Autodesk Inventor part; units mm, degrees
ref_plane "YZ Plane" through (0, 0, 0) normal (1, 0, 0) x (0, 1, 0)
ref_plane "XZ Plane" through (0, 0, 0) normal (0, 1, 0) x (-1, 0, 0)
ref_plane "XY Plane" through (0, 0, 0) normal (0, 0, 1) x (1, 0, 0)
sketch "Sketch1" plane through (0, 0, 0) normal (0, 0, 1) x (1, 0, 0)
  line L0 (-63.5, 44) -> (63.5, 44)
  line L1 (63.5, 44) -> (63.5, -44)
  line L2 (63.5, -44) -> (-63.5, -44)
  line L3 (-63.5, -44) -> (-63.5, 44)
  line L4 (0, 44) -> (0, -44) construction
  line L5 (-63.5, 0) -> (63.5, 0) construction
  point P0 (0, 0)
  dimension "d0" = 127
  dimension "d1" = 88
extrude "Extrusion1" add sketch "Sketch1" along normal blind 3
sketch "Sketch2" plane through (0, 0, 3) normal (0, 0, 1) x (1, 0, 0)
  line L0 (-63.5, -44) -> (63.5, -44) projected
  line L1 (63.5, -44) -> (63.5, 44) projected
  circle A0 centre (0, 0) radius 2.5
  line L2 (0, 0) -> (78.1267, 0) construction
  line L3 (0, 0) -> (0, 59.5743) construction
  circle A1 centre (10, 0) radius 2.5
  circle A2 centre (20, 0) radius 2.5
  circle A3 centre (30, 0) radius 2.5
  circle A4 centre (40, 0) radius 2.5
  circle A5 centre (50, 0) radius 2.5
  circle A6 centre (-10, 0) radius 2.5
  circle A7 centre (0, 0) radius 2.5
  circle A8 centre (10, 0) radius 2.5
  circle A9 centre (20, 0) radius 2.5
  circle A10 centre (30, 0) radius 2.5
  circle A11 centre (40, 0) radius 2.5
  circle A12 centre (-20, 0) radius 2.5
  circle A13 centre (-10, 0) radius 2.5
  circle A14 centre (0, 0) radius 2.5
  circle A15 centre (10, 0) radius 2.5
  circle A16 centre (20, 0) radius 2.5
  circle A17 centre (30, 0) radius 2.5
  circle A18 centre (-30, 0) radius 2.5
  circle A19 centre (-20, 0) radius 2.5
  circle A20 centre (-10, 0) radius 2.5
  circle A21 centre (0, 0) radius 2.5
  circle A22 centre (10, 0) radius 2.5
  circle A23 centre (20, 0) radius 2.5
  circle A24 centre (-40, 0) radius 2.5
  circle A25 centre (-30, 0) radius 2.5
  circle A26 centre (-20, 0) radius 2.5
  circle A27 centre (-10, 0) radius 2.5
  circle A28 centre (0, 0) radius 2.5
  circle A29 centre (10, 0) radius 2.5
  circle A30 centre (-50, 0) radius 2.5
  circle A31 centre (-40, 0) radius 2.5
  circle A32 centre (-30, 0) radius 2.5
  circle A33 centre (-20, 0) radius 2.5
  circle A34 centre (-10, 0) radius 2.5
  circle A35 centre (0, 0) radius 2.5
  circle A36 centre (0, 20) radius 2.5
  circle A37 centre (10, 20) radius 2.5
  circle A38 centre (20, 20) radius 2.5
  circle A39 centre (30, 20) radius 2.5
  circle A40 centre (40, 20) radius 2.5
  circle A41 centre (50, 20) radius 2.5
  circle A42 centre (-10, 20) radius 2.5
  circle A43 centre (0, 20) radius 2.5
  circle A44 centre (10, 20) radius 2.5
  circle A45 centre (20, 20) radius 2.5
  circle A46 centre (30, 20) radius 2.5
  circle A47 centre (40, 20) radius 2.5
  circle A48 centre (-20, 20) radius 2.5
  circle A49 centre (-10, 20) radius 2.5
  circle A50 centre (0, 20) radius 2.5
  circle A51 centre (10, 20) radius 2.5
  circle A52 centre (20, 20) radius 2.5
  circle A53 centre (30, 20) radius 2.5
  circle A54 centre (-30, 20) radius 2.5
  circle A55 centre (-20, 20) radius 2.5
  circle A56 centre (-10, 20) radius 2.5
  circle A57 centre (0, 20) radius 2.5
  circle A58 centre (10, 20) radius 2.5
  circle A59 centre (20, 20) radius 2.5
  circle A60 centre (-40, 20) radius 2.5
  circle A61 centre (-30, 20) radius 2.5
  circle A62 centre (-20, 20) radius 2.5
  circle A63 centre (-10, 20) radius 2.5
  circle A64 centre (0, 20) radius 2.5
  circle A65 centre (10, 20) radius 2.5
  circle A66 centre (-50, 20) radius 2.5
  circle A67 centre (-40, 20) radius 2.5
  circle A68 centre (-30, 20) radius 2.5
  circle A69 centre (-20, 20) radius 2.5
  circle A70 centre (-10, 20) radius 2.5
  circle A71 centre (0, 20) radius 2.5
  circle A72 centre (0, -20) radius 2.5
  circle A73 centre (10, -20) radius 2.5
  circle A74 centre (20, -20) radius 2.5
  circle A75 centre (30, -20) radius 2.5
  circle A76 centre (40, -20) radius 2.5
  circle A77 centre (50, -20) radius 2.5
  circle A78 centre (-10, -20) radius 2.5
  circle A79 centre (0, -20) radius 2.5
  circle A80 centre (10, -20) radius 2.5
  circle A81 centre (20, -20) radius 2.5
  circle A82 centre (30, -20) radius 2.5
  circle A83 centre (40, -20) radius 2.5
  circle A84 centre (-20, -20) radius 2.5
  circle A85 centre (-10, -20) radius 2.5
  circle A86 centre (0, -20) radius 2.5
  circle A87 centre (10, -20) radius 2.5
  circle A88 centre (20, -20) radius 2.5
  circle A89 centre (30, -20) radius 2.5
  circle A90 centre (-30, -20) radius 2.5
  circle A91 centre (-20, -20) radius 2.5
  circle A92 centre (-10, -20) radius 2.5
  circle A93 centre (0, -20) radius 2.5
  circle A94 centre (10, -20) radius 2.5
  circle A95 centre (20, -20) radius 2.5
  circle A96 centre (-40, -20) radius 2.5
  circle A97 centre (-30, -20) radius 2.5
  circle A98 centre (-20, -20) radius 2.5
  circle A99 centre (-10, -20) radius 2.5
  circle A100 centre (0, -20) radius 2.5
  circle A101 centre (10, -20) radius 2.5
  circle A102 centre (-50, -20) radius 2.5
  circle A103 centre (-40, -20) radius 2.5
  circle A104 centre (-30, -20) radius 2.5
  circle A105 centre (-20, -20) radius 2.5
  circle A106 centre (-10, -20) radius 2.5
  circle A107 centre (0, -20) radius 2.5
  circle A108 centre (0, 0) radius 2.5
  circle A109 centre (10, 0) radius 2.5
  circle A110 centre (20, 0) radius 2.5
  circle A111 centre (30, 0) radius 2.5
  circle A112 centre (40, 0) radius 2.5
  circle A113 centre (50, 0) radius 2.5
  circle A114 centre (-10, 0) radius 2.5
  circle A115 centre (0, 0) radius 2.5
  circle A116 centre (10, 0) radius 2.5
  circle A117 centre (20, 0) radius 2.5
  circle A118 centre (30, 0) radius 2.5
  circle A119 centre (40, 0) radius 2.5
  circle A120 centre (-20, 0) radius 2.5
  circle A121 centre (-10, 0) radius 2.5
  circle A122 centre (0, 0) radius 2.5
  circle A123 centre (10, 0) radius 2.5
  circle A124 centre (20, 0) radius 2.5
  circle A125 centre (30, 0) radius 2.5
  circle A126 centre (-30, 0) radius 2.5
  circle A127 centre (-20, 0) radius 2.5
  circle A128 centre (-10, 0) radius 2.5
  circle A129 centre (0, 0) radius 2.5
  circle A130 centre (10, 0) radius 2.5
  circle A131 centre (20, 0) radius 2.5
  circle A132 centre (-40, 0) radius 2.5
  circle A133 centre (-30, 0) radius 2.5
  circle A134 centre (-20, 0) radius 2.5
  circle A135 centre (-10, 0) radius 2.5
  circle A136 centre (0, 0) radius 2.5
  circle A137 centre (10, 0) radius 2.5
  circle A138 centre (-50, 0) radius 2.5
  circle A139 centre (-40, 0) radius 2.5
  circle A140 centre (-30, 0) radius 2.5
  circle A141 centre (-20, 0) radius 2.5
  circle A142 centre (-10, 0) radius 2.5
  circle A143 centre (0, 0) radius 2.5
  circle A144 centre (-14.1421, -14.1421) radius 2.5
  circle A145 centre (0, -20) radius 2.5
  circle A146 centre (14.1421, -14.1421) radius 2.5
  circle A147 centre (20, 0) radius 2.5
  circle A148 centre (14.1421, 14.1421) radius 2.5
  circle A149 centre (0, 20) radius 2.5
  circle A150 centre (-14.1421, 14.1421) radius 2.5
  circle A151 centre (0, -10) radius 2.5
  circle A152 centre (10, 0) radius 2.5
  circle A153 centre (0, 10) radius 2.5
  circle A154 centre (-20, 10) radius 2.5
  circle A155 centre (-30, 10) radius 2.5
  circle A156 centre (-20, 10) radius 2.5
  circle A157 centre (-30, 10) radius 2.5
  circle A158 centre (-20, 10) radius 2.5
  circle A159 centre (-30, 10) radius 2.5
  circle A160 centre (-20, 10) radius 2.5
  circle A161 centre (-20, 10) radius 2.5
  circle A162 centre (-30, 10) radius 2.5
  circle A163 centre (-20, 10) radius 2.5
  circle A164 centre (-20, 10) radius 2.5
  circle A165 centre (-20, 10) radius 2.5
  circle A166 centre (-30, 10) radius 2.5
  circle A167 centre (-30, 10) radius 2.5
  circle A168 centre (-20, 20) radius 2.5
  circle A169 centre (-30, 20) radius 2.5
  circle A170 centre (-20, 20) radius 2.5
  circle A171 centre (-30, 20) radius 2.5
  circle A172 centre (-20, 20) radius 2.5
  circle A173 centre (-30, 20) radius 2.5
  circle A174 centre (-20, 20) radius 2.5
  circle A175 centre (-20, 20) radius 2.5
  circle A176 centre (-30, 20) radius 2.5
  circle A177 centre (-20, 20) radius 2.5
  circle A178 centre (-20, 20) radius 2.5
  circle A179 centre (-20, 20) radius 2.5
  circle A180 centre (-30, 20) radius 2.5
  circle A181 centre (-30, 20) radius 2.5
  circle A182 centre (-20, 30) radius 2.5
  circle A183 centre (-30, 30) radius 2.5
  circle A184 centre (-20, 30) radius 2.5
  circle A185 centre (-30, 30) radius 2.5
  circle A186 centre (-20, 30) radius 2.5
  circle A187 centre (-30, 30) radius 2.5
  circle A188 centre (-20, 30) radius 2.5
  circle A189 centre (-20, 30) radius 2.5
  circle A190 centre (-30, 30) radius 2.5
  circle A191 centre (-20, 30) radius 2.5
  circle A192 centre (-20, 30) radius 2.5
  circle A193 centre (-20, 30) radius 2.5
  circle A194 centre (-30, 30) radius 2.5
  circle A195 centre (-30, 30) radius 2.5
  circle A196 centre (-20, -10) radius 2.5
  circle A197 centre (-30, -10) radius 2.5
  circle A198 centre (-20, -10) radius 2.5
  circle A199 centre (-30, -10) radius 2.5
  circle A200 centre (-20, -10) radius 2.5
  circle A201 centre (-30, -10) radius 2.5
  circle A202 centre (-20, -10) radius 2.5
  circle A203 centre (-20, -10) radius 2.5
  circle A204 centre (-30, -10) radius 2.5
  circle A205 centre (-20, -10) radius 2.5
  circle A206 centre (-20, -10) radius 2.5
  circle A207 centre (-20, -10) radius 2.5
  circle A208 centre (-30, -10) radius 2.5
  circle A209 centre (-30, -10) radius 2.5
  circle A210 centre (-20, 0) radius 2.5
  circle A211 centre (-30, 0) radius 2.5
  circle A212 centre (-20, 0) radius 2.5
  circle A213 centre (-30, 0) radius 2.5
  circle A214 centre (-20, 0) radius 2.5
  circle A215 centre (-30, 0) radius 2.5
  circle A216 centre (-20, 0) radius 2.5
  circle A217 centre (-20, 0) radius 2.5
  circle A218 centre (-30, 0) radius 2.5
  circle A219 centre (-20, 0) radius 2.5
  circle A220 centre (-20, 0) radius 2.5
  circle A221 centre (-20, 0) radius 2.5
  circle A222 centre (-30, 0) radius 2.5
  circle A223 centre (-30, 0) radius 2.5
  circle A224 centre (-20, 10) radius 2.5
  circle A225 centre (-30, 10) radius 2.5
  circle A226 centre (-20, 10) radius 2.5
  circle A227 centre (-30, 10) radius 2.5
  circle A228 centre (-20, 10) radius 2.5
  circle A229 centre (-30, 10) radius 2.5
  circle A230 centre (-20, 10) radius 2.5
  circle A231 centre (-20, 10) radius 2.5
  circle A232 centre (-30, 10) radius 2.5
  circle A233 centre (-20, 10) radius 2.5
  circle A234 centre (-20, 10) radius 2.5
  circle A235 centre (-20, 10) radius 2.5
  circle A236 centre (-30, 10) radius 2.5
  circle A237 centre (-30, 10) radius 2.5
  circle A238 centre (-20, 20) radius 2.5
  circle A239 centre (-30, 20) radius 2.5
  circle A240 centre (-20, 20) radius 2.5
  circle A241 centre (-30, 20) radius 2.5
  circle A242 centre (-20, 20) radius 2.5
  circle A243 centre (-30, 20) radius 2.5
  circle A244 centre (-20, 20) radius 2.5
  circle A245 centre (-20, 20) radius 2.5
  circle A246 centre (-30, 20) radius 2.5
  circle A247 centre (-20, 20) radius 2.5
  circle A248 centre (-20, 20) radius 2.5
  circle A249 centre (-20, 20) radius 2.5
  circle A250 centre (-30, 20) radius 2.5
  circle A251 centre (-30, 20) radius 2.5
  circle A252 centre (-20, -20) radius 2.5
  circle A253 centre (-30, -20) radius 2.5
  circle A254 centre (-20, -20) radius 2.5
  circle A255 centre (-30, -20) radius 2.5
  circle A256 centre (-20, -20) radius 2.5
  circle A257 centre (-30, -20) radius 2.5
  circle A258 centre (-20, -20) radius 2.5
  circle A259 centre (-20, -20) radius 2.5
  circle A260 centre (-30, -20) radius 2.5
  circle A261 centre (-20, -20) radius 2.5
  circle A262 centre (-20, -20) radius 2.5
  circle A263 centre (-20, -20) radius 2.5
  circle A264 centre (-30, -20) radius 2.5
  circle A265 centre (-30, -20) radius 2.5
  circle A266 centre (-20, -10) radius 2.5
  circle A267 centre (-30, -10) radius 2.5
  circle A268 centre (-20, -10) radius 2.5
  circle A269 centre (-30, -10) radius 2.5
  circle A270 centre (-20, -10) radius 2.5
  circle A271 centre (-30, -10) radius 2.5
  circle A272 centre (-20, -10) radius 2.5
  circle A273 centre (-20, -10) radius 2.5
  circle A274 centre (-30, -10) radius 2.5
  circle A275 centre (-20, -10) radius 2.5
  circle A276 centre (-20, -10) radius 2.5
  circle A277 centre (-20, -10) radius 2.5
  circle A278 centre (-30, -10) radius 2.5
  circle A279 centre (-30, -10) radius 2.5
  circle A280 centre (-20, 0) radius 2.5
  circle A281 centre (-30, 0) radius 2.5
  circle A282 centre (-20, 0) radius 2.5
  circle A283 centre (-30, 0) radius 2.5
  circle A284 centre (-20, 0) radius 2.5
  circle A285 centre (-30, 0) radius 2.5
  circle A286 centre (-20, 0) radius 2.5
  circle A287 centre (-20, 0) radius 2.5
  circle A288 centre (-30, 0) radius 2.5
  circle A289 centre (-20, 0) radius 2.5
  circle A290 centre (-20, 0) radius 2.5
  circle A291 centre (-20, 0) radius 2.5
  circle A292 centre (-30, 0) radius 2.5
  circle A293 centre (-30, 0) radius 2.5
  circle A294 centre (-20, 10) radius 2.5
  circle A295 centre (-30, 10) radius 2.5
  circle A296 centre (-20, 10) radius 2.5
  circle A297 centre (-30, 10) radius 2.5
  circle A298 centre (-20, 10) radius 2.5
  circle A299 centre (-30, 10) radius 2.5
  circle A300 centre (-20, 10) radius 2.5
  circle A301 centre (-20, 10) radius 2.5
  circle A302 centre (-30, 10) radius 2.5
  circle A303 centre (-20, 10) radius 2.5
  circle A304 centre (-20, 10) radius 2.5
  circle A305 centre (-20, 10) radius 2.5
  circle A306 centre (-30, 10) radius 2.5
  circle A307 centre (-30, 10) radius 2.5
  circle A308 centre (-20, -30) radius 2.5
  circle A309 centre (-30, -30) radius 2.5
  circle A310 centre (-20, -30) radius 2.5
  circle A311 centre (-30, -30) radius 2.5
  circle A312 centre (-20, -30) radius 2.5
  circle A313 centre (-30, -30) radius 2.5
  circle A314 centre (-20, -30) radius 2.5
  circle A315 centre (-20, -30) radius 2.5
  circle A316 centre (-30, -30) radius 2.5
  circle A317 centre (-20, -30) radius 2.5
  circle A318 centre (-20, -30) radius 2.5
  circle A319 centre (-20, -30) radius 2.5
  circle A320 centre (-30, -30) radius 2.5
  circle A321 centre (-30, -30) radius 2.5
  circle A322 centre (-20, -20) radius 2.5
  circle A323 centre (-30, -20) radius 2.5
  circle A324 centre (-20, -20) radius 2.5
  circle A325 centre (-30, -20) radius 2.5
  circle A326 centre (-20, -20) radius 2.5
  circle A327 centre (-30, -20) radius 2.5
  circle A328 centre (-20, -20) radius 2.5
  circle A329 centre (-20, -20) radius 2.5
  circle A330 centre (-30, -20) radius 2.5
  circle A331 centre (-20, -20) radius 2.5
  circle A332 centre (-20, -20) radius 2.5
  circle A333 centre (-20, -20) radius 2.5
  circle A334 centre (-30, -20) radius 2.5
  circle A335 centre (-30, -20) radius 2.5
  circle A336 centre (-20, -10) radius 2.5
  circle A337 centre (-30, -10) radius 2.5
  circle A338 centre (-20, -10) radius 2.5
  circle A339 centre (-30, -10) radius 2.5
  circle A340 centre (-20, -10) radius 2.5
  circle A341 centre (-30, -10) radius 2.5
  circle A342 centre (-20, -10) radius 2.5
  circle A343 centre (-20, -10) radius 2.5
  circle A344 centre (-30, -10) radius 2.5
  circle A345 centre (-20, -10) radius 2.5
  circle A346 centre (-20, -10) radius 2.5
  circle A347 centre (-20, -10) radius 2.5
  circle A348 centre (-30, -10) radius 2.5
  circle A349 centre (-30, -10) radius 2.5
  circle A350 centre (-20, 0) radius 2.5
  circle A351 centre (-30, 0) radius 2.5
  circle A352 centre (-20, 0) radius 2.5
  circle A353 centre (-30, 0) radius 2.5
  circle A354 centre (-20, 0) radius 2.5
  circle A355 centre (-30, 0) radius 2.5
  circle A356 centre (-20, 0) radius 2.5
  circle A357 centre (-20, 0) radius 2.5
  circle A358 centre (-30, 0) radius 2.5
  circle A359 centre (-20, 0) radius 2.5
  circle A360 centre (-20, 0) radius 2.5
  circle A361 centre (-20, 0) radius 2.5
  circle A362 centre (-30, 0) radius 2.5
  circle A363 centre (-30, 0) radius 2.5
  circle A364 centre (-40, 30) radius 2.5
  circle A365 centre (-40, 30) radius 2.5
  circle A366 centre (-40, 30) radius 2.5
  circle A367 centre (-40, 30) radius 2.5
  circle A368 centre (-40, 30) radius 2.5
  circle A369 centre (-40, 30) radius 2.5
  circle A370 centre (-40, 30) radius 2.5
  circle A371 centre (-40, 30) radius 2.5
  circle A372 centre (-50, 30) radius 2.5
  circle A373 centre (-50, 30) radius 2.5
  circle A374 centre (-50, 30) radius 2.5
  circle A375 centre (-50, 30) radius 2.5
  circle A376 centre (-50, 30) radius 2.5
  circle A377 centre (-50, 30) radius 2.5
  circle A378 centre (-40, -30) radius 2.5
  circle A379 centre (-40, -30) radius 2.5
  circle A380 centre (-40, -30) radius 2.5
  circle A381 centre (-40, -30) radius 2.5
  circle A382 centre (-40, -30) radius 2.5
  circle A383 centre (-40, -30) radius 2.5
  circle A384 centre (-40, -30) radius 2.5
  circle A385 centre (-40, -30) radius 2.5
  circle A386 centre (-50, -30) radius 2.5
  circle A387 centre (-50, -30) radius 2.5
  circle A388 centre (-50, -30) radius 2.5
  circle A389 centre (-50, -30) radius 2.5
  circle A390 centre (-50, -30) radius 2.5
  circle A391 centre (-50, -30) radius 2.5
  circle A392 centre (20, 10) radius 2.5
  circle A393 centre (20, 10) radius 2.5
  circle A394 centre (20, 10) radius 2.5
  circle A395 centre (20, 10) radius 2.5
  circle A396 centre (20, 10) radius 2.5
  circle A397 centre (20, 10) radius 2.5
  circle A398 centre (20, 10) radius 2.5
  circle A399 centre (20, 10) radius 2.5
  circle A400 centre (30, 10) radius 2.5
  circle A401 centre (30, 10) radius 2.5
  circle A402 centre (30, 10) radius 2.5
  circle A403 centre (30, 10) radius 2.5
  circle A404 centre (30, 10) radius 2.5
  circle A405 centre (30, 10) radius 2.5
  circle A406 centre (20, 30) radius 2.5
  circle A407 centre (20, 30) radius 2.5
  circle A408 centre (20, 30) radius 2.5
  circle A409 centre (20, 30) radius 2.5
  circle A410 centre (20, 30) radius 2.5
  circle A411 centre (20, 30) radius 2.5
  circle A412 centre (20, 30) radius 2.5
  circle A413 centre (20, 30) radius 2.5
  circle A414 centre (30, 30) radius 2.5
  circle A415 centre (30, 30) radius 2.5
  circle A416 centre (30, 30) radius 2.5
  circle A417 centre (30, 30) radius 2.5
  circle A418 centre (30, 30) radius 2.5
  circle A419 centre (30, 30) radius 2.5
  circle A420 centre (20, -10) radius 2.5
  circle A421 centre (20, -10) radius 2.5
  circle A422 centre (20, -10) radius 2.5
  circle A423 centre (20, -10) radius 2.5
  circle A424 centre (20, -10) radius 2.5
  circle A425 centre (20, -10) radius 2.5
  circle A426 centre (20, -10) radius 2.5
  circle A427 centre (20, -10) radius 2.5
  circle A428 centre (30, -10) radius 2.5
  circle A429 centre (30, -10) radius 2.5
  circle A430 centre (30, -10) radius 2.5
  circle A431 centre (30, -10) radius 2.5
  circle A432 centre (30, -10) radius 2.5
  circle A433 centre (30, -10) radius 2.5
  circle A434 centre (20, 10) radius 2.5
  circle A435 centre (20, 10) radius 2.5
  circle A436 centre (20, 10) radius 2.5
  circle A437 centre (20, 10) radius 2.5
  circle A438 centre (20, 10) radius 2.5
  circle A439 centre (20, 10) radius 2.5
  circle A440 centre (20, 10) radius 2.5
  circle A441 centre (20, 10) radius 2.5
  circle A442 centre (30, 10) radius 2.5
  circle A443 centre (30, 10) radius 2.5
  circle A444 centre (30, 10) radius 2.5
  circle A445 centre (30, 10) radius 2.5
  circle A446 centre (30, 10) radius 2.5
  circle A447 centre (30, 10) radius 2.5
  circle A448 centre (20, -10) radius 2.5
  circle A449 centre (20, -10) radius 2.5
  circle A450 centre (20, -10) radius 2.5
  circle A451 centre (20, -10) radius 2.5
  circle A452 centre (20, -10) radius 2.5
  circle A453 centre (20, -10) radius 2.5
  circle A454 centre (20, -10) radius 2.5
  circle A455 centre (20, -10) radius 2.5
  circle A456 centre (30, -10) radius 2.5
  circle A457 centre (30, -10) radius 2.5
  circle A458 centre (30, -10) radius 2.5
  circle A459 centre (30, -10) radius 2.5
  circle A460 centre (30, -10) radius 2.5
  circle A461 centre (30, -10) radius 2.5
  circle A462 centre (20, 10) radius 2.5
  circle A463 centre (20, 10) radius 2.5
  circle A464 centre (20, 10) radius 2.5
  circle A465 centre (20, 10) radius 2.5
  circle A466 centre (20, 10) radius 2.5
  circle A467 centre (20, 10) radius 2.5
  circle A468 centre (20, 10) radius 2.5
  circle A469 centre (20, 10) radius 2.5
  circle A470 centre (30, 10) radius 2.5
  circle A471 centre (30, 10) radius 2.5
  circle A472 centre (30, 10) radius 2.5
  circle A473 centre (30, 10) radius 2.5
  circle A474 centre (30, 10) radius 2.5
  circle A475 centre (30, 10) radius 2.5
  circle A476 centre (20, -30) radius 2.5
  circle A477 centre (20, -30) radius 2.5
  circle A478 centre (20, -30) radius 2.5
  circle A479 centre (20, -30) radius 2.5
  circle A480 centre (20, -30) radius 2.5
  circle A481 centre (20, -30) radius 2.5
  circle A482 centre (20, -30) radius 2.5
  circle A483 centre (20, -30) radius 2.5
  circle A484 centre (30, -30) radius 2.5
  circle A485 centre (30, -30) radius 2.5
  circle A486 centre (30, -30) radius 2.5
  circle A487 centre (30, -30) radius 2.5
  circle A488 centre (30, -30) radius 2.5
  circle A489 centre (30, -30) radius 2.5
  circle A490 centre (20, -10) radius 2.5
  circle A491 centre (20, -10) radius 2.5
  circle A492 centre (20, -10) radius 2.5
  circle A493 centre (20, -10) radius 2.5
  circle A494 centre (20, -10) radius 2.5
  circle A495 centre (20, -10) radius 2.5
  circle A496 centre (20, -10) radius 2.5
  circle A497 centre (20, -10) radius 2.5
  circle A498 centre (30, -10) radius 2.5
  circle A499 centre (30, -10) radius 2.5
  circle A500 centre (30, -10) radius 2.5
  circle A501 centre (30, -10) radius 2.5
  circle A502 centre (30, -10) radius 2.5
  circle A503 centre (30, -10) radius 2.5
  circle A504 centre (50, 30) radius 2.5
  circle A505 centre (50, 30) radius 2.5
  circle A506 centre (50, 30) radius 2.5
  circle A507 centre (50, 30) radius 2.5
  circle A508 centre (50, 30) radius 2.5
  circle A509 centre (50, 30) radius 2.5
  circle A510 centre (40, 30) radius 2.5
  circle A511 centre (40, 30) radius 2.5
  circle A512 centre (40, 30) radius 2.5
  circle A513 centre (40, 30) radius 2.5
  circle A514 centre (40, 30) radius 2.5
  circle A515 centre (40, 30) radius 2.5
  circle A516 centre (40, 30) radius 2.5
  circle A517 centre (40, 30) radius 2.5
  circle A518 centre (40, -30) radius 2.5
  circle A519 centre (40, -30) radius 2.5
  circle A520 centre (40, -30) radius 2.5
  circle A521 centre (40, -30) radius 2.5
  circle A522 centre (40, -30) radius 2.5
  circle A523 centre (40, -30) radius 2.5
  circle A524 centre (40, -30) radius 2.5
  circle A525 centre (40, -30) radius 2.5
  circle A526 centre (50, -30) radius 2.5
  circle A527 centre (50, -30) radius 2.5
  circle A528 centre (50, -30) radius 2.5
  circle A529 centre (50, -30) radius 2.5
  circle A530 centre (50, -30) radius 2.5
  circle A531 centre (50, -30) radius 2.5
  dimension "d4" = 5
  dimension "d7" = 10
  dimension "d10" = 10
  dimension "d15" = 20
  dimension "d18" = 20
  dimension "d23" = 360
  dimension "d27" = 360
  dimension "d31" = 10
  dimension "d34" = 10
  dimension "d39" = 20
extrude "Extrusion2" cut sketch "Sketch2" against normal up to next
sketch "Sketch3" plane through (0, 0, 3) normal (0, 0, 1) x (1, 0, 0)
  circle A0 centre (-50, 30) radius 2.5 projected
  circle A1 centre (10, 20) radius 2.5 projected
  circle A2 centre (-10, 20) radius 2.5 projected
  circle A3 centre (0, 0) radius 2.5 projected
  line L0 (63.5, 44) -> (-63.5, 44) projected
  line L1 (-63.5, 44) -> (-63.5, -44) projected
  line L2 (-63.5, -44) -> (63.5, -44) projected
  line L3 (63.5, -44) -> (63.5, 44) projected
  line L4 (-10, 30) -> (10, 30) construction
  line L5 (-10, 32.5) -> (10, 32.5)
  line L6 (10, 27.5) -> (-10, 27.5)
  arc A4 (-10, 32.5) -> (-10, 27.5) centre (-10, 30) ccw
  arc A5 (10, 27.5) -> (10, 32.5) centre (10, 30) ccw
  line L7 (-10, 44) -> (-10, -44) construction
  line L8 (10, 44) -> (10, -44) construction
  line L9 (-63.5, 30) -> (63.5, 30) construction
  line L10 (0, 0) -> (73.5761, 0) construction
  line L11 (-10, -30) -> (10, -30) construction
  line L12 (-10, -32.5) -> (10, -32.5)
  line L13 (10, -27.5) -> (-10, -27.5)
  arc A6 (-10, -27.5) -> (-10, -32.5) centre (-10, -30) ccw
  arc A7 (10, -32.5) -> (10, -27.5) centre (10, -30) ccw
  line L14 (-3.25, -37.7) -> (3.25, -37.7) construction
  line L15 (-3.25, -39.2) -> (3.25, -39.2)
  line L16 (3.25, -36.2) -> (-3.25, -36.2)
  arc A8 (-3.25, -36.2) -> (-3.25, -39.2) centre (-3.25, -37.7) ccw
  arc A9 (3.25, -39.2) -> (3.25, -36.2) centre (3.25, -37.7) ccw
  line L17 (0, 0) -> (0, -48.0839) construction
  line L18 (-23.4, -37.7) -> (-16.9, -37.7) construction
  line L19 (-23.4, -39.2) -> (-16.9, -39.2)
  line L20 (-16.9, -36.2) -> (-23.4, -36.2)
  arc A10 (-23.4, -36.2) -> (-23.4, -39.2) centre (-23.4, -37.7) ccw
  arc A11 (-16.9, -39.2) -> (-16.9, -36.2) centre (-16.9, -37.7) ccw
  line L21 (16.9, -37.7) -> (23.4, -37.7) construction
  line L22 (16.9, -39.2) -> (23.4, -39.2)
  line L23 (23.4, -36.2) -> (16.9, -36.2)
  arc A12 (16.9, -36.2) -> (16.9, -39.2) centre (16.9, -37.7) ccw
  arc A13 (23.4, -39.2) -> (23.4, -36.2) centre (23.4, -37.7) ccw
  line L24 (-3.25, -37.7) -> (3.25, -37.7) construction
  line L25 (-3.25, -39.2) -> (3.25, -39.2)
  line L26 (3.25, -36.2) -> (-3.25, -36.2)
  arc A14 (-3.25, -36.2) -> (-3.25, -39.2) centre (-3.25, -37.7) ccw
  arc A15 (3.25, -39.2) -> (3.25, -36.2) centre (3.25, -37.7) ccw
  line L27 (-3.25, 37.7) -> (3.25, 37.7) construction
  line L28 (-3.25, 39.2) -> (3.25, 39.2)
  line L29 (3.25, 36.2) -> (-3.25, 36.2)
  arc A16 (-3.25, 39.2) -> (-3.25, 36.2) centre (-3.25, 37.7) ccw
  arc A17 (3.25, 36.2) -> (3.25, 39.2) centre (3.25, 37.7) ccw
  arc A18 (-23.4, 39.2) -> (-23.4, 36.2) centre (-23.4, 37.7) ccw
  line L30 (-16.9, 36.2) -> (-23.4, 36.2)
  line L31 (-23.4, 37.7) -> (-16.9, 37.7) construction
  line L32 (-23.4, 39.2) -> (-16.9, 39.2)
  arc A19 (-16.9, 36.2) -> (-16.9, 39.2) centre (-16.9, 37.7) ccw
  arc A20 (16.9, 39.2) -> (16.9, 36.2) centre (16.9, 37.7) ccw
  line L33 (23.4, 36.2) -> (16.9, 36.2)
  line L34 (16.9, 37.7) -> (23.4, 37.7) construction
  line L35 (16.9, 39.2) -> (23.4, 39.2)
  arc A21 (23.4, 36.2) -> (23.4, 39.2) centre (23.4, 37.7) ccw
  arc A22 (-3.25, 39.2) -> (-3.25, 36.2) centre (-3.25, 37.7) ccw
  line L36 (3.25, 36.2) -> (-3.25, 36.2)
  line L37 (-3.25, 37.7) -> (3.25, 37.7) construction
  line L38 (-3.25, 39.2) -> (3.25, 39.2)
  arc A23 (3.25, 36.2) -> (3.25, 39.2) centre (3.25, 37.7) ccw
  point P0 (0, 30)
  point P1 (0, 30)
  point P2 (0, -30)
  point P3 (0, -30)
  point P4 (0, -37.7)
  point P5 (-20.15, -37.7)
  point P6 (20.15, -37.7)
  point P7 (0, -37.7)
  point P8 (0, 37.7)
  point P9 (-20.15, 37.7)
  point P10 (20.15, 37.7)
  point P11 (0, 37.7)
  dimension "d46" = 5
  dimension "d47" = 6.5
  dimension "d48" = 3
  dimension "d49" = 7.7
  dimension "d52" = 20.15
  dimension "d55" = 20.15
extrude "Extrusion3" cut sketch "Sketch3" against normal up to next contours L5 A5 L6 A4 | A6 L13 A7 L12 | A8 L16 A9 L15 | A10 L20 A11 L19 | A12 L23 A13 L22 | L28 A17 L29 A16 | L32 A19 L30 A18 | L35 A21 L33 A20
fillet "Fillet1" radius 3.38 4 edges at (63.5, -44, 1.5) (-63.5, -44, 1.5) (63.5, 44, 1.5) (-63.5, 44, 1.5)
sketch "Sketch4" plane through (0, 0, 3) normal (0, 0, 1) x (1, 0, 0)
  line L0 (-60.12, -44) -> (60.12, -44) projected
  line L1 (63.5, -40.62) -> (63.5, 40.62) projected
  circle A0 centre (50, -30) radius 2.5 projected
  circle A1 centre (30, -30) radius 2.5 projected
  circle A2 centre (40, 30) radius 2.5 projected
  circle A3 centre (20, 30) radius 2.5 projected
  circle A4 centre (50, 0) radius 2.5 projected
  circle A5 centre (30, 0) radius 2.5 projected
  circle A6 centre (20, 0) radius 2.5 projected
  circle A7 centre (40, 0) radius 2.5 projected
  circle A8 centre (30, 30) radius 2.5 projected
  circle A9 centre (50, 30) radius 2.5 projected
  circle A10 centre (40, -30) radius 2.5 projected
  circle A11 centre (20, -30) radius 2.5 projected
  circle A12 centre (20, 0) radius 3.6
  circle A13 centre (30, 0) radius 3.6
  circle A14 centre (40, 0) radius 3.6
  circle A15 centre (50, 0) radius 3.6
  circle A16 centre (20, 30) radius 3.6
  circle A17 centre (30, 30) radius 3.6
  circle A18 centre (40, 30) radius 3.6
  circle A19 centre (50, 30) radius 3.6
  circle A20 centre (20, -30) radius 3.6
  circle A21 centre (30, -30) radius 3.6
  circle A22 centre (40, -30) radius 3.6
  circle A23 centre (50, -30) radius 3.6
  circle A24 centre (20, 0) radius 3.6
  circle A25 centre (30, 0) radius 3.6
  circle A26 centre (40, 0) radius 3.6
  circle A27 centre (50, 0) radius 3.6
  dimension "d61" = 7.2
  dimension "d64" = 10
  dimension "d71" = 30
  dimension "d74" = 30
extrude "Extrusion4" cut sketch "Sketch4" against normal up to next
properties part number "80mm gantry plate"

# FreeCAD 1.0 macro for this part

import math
import FreeCAD as App
import Part
import Sketcher

V = App.Vector


def edges_at(feature, points):
    """Names of the edges that pass closest to the given points."""
    edges = feature.Shape.Edges
    near = lambda p: min(range(len(edges)), key=lambda i: edges[i].distToShape(Part.Vertex(*p))[0])
    return sorted({f"Edge{near(p) + 1}" for p in points})

doc = App.newDocument("Part")
body = doc.addObject("PartDesign::Body", "Body")

sketch1 = body.newObject("Sketcher::SketchObject", "Sketch")
sketch1.AttachmentSupport = (doc.getObject("XY_Plane"), [""])
sketch1.MapMode = "FlatFace"
sketch1.addGeometry([
    Part.LineSegment(V(64, 44, 0), V(-64, 44, 0)),
    Part.LineSegment(V(-64, 44, 0), V(-64, -44, 0)),
    Part.LineSegment(V(-64, -44, 0), V(64, -44, 0)),
    Part.LineSegment(V(64, -44, 0), V(64, 44, 0)),
], False)
sketch1.addConstraint([
    Sketcher.Constraint("Coincident", 0, 2, 1, 1),
    Sketcher.Constraint("Coincident", 1, 2, 2, 1),
    Sketcher.Constraint("Coincident", 2, 2, 3, 1),
    Sketcher.Constraint("Coincident", 3, 2, 0, 1),
    Sketcher.Constraint("Horizontal", 0),
    Sketcher.Constraint("Vertical", 1),
    Sketcher.Constraint("Horizontal", 2),
    Sketcher.Constraint("Vertical", 3),
    Sketcher.Constraint("Symmetric", 0, 2, 2, 2, -1, 1),
    Sketcher.Constraint("DistanceX", 0, 2, 0, 1, 127.0),
    Sketcher.Constraint("DistanceY", 1, 2, 1, 1, 88.0),
])
pad1 = body.newObject("PartDesign::Pad", "Pad")
pad1.Profile = sketch1
pad1.Length = 3

sketch2 = body.newObject("Sketcher::SketchObject", "Sketch001")
sketch2.AttachmentSupport = (doc.getObject("XY_Plane"), [""])
sketch2.MapMode = "FlatFace"
sketch2.AttachmentOffset = App.Placement(V(0, 0, 3), App.Rotation())
sketch2.addGeometry([
    Part.Circle(V(0, 0, 0), V(0, 0, 1), 2.5),
    Part.Circle(V(10, 0, 0), V(0, 0, 1), 2.5),
    Part.Circle(V(20, 0, 0), V(0, 0, 1), 2.5),
    Part.Circle(V(30, 0, 0), V(0, 0, 1), 2.5),
    Part.Circle(V(40, 0, 0), V(0, 0, 1), 2.5),
    Part.Circle(V(50, 0, 0), V(0, 0, 1), 2.5),
    Part.Circle(V(-10, 0, 0), V(0, 0, 1), 2.5),
    Part.Circle(V(-20, 0, 0), V(0, 0, 1), 2.5),
    Part.Circle(V(-30, 0, 0), V(0, 0, 1), 2.5),
    Part.Circle(V(-40, 0, 0), V(0, 0, 1), 2.5),
    Part.Circle(V(-50, 0, 0), V(0, 0, 1), 2.5),
    Part.Circle(V(0, 20, 0), V(0, 0, 1), 2.5),
    Part.Circle(V(10, 20, 0), V(0, 0, 1), 2.5),
    Part.Circle(V(20, 20, 0), V(0, 0, 1), 2.5),
    Part.Circle(V(30, 20, 0), V(0, 0, 1), 2.5),
    Part.Circle(V(40, 20, 0), V(0, 0, 1), 2.5),
    Part.Circle(V(50, 20, 0), V(0, 0, 1), 2.5),
    Part.Circle(V(-10, 20, 0), V(0, 0, 1), 2.5),
    Part.Circle(V(-20, 20, 0), V(0, 0, 1), 2.5),
    Part.Circle(V(-30, 20, 0), V(0, 0, 1), 2.5),
    Part.Circle(V(-40, 20, 0), V(0, 0, 1), 2.5),
    Part.Circle(V(-50, 20, 0), V(0, 0, 1), 2.5),
    Part.Circle(V(0, -20, 0), V(0, 0, 1), 2.5),
    Part.Circle(V(10, -20, 0), V(0, 0, 1), 2.5),
    Part.Circle(V(20, -20, 0), V(0, 0, 1), 2.5),
    Part.Circle(V(30, -20, 0), V(0, 0, 1), 2.5),
    Part.Circle(V(40, -20, 0), V(0, 0, 1), 2.5),
    Part.Circle(V(50, -20, 0), V(0, 0, 1), 2.5),
    Part.Circle(V(-10, -20, 0), V(0, 0, 1), 2.5),
    Part.Circle(V(-20, -20, 0), V(0, 0, 1), 2.5),
    Part.Circle(V(-30, -20, 0), V(0, 0, 1), 2.5),
    Part.Circle(V(-40, -20, 0), V(0, 0, 1), 2.5),
    Part.Circle(V(-50, -20, 0), V(0, 0, 1), 2.5),
    Part.Circle(V(-14.1, -14.1, 0), V(0, 0, 1), 2.5),
    Part.Circle(V(14.1, -14.1, 0), V(0, 0, 1), 2.5),
    Part.Circle(V(14.1, 14.1, 0), V(0, 0, 1), 2.5),
    Part.Circle(V(-14.1, 14.1, 0), V(0, 0, 1), 2.5),
    Part.Circle(V(0, -10, 0), V(0, 0, 1), 2.5),
    Part.Circle(V(0, 10, 0), V(0, 0, 1), 2.5),
    Part.Circle(V(-20, 10, 0), V(0, 0, 1), 2.5),
    Part.Circle(V(-30, 10, 0), V(0, 0, 1), 2.5),
    Part.Circle(V(-20, 30, 0), V(0, 0, 1), 2.5),
    Part.Circle(V(-30, 30, 0), V(0, 0, 1), 2.5),
    Part.Circle(V(-20, -10, 0), V(0, 0, 1), 2.5),
    Part.Circle(V(-30, -10, 0), V(0, 0, 1), 2.5),
    Part.Circle(V(-20, -30, 0), V(0, 0, 1), 2.5),
    Part.Circle(V(-30, -30, 0), V(0, 0, 1), 2.5),
    Part.Circle(V(-40, 30, 0), V(0, 0, 1), 2.5),
    Part.Circle(V(-50, 30, 0), V(0, 0, 1), 2.5),
    Part.Circle(V(-40, -30, 0), V(0, 0, 1), 2.5),
    Part.Circle(V(-50, -30, 0), V(0, 0, 1), 2.5),
    Part.Circle(V(20, 10, 0), V(0, 0, 1), 2.5),
    Part.Circle(V(30, 10, 0), V(0, 0, 1), 2.5),
    Part.Circle(V(20, 30, 0), V(0, 0, 1), 2.5),
    Part.Circle(V(30, 30, 0), V(0, 0, 1), 2.5),
    Part.Circle(V(20, -10, 0), V(0, 0, 1), 2.5),
    Part.Circle(V(30, -10, 0), V(0, 0, 1), 2.5),
    Part.Circle(V(20, -30, 0), V(0, 0, 1), 2.5),
    Part.Circle(V(30, -30, 0), V(0, 0, 1), 2.5),
    Part.Circle(V(50, 30, 0), V(0, 0, 1), 2.5),
    Part.Circle(V(40, 30, 0), V(0, 0, 1), 2.5),
    Part.Circle(V(40, -30, 0), V(0, 0, 1), 2.5),
    Part.Circle(V(50, -30, 0), V(0, 0, 1), 2.5),
], False)
sketch2.addConstraint([
    Sketcher.Constraint("Coincident", 0, 3, -1, 1),
    Sketcher.Constraint("Equal", 0, 1),
    Sketcher.Constraint("Equal", 1, 2),
    Sketcher.Constraint("Equal", 2, 3),
    Sketcher.Constraint("Equal", 3, 4),
    Sketcher.Constraint("Equal", 4, 5),
    Sketcher.Constraint("Equal", 5, 6),
    Sketcher.Constraint("Equal", 6, 7),
    Sketcher.Constraint("Equal", 7, 8),
    Sketcher.Constraint("Equal", 8, 9),
    Sketcher.Constraint("Equal", 9, 10),
    Sketcher.Constraint("Equal", 10, 11),
    Sketcher.Constraint("Equal", 11, 12),
    Sketcher.Constraint("Equal", 12, 13),
    Sketcher.Constraint("Equal", 13, 14),
    Sketcher.Constraint("Equal", 14, 15),
    Sketcher.Constraint("Equal", 15, 16),
    Sketcher.Constraint("Equal", 16, 17),
    Sketcher.Constraint("Equal", 17, 18),
    Sketcher.Constraint("Equal", 18, 19),
    Sketcher.Constraint("Equal", 19, 20),
    Sketcher.Constraint("Equal", 20, 21),
    Sketcher.Constraint("Equal", 21, 22),
    Sketcher.Constraint("Equal", 22, 23),
    Sketcher.Constraint("Equal", 23, 24),
    Sketcher.Constraint("Equal", 24, 25),
    Sketcher.Constraint("Equal", 25, 26),
    Sketcher.Constraint("Equal", 26, 27),
    Sketcher.Constraint("Equal", 27, 28),
    Sketcher.Constraint("Equal", 28, 29),
    Sketcher.Constraint("Equal", 29, 30),
    Sketcher.Constraint("Equal", 30, 31),
    Sketcher.Constraint("Equal", 31, 32),
    Sketcher.Constraint("Equal", 32, 33),
    Sketcher.Constraint("Equal", 33, 34),
    Sketcher.Constraint("Equal", 34, 35),
    Sketcher.Constraint("Equal", 35, 36),
    Sketcher.Constraint("Equal", 36, 37),
    Sketcher.Constraint("Equal", 37, 38),
    Sketcher.Constraint("Equal", 38, 39),
    Sketcher.Constraint("Equal", 39, 40),
    Sketcher.Constraint("Equal", 40, 41),
    Sketcher.Constraint("Equal", 41, 42),
    Sketcher.Constraint("Equal", 42, 43),
    Sketcher.Constraint("Equal", 43, 44),
    Sketcher.Constraint("Equal", 44, 45),
    Sketcher.Constraint("Equal", 45, 46),
    Sketcher.Constraint("Equal", 46, 47),
    Sketcher.Constraint("Equal", 47, 48),
    Sketcher.Constraint("Equal", 48, 49),
    Sketcher.Constraint("Equal", 49, 50),
    Sketcher.Constraint("Equal", 50, 51),
    Sketcher.Constraint("Equal", 51, 52),
    Sketcher.Constraint("Equal", 52, 53),
    Sketcher.Constraint("Equal", 53, 54),
    Sketcher.Constraint("Equal", 54, 55),
    Sketcher.Constraint("Equal", 55, 56),
    Sketcher.Constraint("Equal", 56, 57),
    Sketcher.Constraint("Equal", 57, 58),
    Sketcher.Constraint("Equal", 58, 59),
    Sketcher.Constraint("Equal", 59, 60),
    Sketcher.Constraint("Equal", 60, 61),
    Sketcher.Constraint("Equal", 61, 62),
    Sketcher.Constraint("Symmetric", 1, 3, 6, 3, -1, 1),
    Sketcher.Constraint("Symmetric", 2, 3, 7, 3, -1, 1),
    Sketcher.Constraint("Symmetric", 3, 3, 8, 3, -1, 1),
    Sketcher.Constraint("Symmetric", 4, 3, 9, 3, -1, 1),
    Sketcher.Constraint("Symmetric", 5, 3, 10, 3, -1, 1),
    Sketcher.Constraint("Symmetric", 11, 3, 22, 3, -1, 1),
    Sketcher.Constraint("Symmetric", 17, 3, 23, 3, -1, 1),
    Sketcher.Constraint("Symmetric", 18, 3, 24, 3, -1, 1),
    Sketcher.Constraint("Symmetric", 19, 3, 25, 3, -1, 1),
    Sketcher.Constraint("Symmetric", 20, 3, 26, 3, -1, 1),
    Sketcher.Constraint("Symmetric", 21, 3, 27, 3, -1, 1),
    Sketcher.Constraint("Symmetric", 12, 3, 28, 3, -1, 1),
    Sketcher.Constraint("Symmetric", 13, 3, 29, 3, -1, 1),
    Sketcher.Constraint("Symmetric", 14, 3, 30, 3, -1, 1),
    Sketcher.Constraint("Symmetric", 15, 3, 31, 3, -1, 1),
    Sketcher.Constraint("Symmetric", 16, 3, 32, 3, -1, 1),
    Sketcher.Constraint("Symmetric", 33, 3, 35, 3, -1, 1),
    Sketcher.Constraint("Symmetric", 34, 3, 36, 3, -1, 1),
    Sketcher.Constraint("Symmetric", 37, 3, 38, 3, -1, 1),
    Sketcher.Constraint("Symmetric", 43, 3, 51, 3, -1, 1),
    Sketcher.Constraint("Symmetric", 44, 3, 52, 3, -1, 1),
    Sketcher.Constraint("Symmetric", 45, 3, 53, 3, -1, 1),
    Sketcher.Constraint("Symmetric", 46, 3, 54, 3, -1, 1),
    Sketcher.Constraint("Symmetric", 39, 3, 55, 3, -1, 1),
    Sketcher.Constraint("Symmetric", 40, 3, 56, 3, -1, 1),
    Sketcher.Constraint("Symmetric", 41, 3, 57, 3, -1, 1),
    Sketcher.Constraint("Symmetric", 42, 3, 58, 3, -1, 1),
    Sketcher.Constraint("Symmetric", 50, 3, 59, 3, -1, 1),
    Sketcher.Constraint("Symmetric", 49, 3, 60, 3, -1, 1),
    Sketcher.Constraint("Symmetric", 47, 3, 61, 3, -1, 1),
    Sketcher.Constraint("Symmetric", 48, 3, 62, 3, -1, 1),
    Sketcher.Constraint("Symmetric", 12, 3, 17, 3, -2),
    Sketcher.Constraint("Symmetric", 13, 3, 18, 3, -2),
    Sketcher.Constraint("Symmetric", 14, 3, 19, 3, -2),
    Sketcher.Constraint("Symmetric", 15, 3, 20, 3, -2),
    Sketcher.Constraint("Symmetric", 16, 3, 21, 3, -2),
    Sketcher.Constraint("Symmetric", 33, 3, 34, 3, -2),
    Sketcher.Constraint("Symmetric", 39, 3, 51, 3, -2),
    Sketcher.Constraint("Symmetric", 40, 3, 52, 3, -2),
    Sketcher.Constraint("Symmetric", 41, 3, 53, 3, -2),
    Sketcher.Constraint("Symmetric", 42, 3, 54, 3, -2),
    Sketcher.Constraint("Symmetric", 48, 3, 59, 3, -2),
    Sketcher.Constraint("Symmetric", 47, 3, 60, 3, -2),
    Sketcher.Constraint("PointOnObject", 1, 3, -1),
    Sketcher.Constraint("PointOnObject", 2, 3, -1),
    Sketcher.Constraint("PointOnObject", 3, 3, -1),
    Sketcher.Constraint("PointOnObject", 4, 3, -1),
    Sketcher.Constraint("PointOnObject", 5, 3, -1),
    Sketcher.Constraint("PointOnObject", 11, 3, -2),
    Sketcher.Constraint("PointOnObject", 37, 3, -2),
    Sketcher.Constraint("Horizontal", 11, 3, 12, 3),
    Sketcher.Constraint("Horizontal", 12, 3, 13, 3),
    Sketcher.Constraint("Horizontal", 13, 3, 14, 3),
    Sketcher.Constraint("Horizontal", 14, 3, 15, 3),
    Sketcher.Constraint("Horizontal", 15, 3, 16, 3),
    Sketcher.Constraint("Horizontal", 38, 3, 39, 3),
    Sketcher.Constraint("Horizontal", 39, 3, 40, 3),
    Sketcher.Constraint("Horizontal", 41, 3, 42, 3),
    Sketcher.Constraint("Horizontal", 42, 3, 47, 3),
    Sketcher.Constraint("Horizontal", 47, 3, 48, 3),
    Sketcher.Constraint("Vertical", 1, 3, 12, 3),
    Sketcher.Constraint("Vertical", 2, 3, 13, 3),
    Sketcher.Constraint("Vertical", 3, 3, 14, 3),
    Sketcher.Constraint("Vertical", 4, 3, 15, 3),
    Sketcher.Constraint("Vertical", 5, 3, 16, 3),
    Sketcher.Constraint("Vertical", 29, 3, 39, 3),
    Sketcher.Constraint("Vertical", 30, 3, 40, 3),
    Sketcher.Constraint("Vertical", 39, 3, 41, 3),
    Sketcher.Constraint("Vertical", 40, 3, 42, 3),
    Sketcher.Constraint("Vertical", 31, 3, 47, 3),
    Sketcher.Constraint("Vertical", 32, 3, 48, 3),
    Sketcher.Constraint("Diameter", 0, 5.0),
    Sketcher.Constraint("DistanceX", -1, 1, 1, 3, 10.0),
    Sketcher.Constraint("DistanceX", -1, 1, 2, 3, 20.0),
    Sketcher.Constraint("DistanceY", -1, 1, 11, 3, 20.0),
    Sketcher.Constraint("DistanceY", 37, 3, -1, 1, 10.0),
    Sketcher.Constraint("DistanceX", -1, 1, 3, 3, 30.0),
    Sketcher.Constraint("DistanceX", -1, 1, 4, 3, 40.0),
    Sketcher.Constraint("DistanceX", -1, 1, 5, 3, 50.0),
    Sketcher.Constraint("DistanceY", -1, 1, 41, 3, 30.0),
    Sketcher.Constraint("DistanceX", 33, 3, -1, 1, 14.142),
    Sketcher.Constraint("DistanceY", 33, 3, -1, 1, 14.142),
])
pocket1 = body.newObject("PartDesign::Pocket", "Pocket")
pocket1.Profile = sketch2
pocket1.Type = "UpToFirst"

sketch3 = body.newObject("Sketcher::SketchObject", "Sketch002")
sketch3.AttachmentSupport = (doc.getObject("XY_Plane"), [""])
sketch3.MapMode = "FlatFace"
sketch3.AttachmentOffset = App.Placement(V(0, 0, 3), App.Rotation())
sketch3.addGeometry([
    Part.LineSegment(V(10, 32.5, 0), V(-10, 32.5, 0)),
    Part.ArcOfCircle(Part.Circle(V(-10, 30, 0), V(0, 0, 1), 2.5), math.radians(90), math.radians(270)),
    Part.LineSegment(V(-10, 27.5, 0), V(10, 27.5, 0)),
    Part.ArcOfCircle(Part.Circle(V(10, 30, 0), V(0, 0, 1), 2.5), math.radians(-90), math.radians(90)),
    Part.ArcOfCircle(Part.Circle(V(-10, -30, 0), V(0, 0, 1), 2.5), math.radians(90), math.radians(270)),
    Part.LineSegment(V(-10, -32.5, 0), V(10, -32.5, 0)),
    Part.ArcOfCircle(Part.Circle(V(10, -30, 0), V(0, 0, 1), 2.5), math.radians(-90), math.radians(90)),
    Part.LineSegment(V(10, -27.5, 0), V(-10, -27.5, 0)),
    Part.ArcOfCircle(Part.Circle(V(-3.2, -37.7, 0), V(0, 0, 1), 1.5), math.radians(90), math.radians(270)),
    Part.LineSegment(V(-3.2, -39.2, 0), V(3.2, -39.2, 0)),
    Part.ArcOfCircle(Part.Circle(V(3.2, -37.7, 0), V(0, 0, 1), 1.5), math.radians(-90), math.radians(90)),
    Part.LineSegment(V(3.2, -36.2, 0), V(-3.2, -36.2, 0)),
    Part.ArcOfCircle(Part.Circle(V(-23.4, -37.7, 0), V(0, 0, 1), 1.5), math.radians(90), math.radians(270)),
    Part.LineSegment(V(-23.4, -39.2, 0), V(-16.9, -39.2, 0)),
    Part.ArcOfCircle(Part.Circle(V(-16.9, -37.7, 0), V(0, 0, 1), 1.5), math.radians(-90), math.radians(90)),
    Part.LineSegment(V(-16.9, -36.2, 0), V(-23.4, -36.2, 0)),
    Part.ArcOfCircle(Part.Circle(V(16.9, -37.7, 0), V(0, 0, 1), 1.5), math.radians(90), math.radians(270)),
    Part.LineSegment(V(16.9, -39.2, 0), V(23.4, -39.2, 0)),
    Part.ArcOfCircle(Part.Circle(V(23.4, -37.7, 0), V(0, 0, 1), 1.5), math.radians(-90), math.radians(90)),
    Part.LineSegment(V(23.4, -36.2, 0), V(16.9, -36.2, 0)),
    Part.LineSegment(V(3.2, 39.2, 0), V(-3.2, 39.2, 0)),
    Part.ArcOfCircle(Part.Circle(V(-3.2, 37.7, 0), V(0, 0, 1), 1.5), math.radians(90), math.radians(270)),
    Part.LineSegment(V(-3.2, 36.2, 0), V(3.2, 36.2, 0)),
    Part.ArcOfCircle(Part.Circle(V(3.2, 37.7, 0), V(0, 0, 1), 1.5), math.radians(-90), math.radians(90)),
    Part.LineSegment(V(-16.9, 39.2, 0), V(-23.4, 39.2, 0)),
    Part.ArcOfCircle(Part.Circle(V(-23.4, 37.7, 0), V(0, 0, 1), 1.5), math.radians(90), math.radians(270)),
    Part.LineSegment(V(-23.4, 36.2, 0), V(-16.9, 36.2, 0)),
    Part.ArcOfCircle(Part.Circle(V(-16.9, 37.7, 0), V(0, 0, 1), 1.5), math.radians(-90), math.radians(90)),
    Part.LineSegment(V(23.4, 39.2, 0), V(16.9, 39.2, 0)),
    Part.ArcOfCircle(Part.Circle(V(16.9, 37.7, 0), V(0, 0, 1), 1.5), math.radians(90), math.radians(270)),
    Part.LineSegment(V(16.9, 36.2, 0), V(23.4, 36.2, 0)),
    Part.ArcOfCircle(Part.Circle(V(23.4, 37.7, 0), V(0, 0, 1), 1.5), math.radians(-90), math.radians(90)),
], False)
sketch3.addConstraint([
    Sketcher.Constraint("Tangent", 0, 2, 1, 1),
    Sketcher.Constraint("Tangent", 1, 2, 2, 1),
    Sketcher.Constraint("Tangent", 2, 2, 3, 1),
    Sketcher.Constraint("Tangent", 3, 2, 0, 1),
    Sketcher.Constraint("Tangent", 4, 2, 5, 1),
    Sketcher.Constraint("Tangent", 5, 2, 6, 1),
    Sketcher.Constraint("Tangent", 6, 2, 7, 1),
    Sketcher.Constraint("Tangent", 7, 2, 4, 1),
    Sketcher.Constraint("Tangent", 8, 2, 9, 1),
    Sketcher.Constraint("Tangent", 9, 2, 10, 1),
    Sketcher.Constraint("Tangent", 10, 2, 11, 1),
    Sketcher.Constraint("Tangent", 11, 2, 8, 1),
    Sketcher.Constraint("Tangent", 12, 2, 13, 1),
    Sketcher.Constraint("Tangent", 13, 2, 14, 1),
    Sketcher.Constraint("Tangent", 14, 2, 15, 1),
    Sketcher.Constraint("Tangent", 15, 2, 12, 1),
    Sketcher.Constraint("Tangent", 16, 2, 17, 1),
    Sketcher.Constraint("Tangent", 17, 2, 18, 1),
    Sketcher.Constraint("Tangent", 18, 2, 19, 1),
    Sketcher.Constraint("Tangent", 19, 2, 16, 1),
    Sketcher.Constraint("Tangent", 20, 2, 21, 1),
    Sketcher.Constraint("Tangent", 21, 2, 22, 1),
    Sketcher.Constraint("Tangent", 22, 2, 23, 1),
    Sketcher.Constraint("Tangent", 23, 2, 20, 1),
    Sketcher.Constraint("Tangent", 24, 2, 25, 1),
    Sketcher.Constraint("Tangent", 25, 2, 26, 1),
    Sketcher.Constraint("Tangent", 26, 2, 27, 1),
    Sketcher.Constraint("Tangent", 27, 2, 24, 1),
    Sketcher.Constraint("Tangent", 28, 2, 29, 1),
    Sketcher.Constraint("Tangent", 29, 2, 30, 1),
    Sketcher.Constraint("Tangent", 30, 2, 31, 1),
    Sketcher.Constraint("Tangent", 31, 2, 28, 1),
    Sketcher.Constraint("Horizontal", 0),
    Sketcher.Constraint("Horizontal", 2),
    Sketcher.Constraint("Horizontal", 5),
    Sketcher.Constraint("Horizontal", 7),
    Sketcher.Constraint("Horizontal", 9),
    Sketcher.Constraint("Horizontal", 11),
    Sketcher.Constraint("Horizontal", 13),
    Sketcher.Constraint("Horizontal", 15),
    Sketcher.Constraint("Horizontal", 17),
    Sketcher.Constraint("Horizontal", 19),
    Sketcher.Constraint("Horizontal", 20),
    Sketcher.Constraint("Horizontal", 22),
    Sketcher.Constraint("Horizontal", 24),
    Sketcher.Constraint("Horizontal", 26),
    Sketcher.Constraint("Horizontal", 28),
    Sketcher.Constraint("Horizontal", 30),
    Sketcher.Constraint("Equal", 3, 4),
    Sketcher.Constraint("Equal", 10, 12),
    Sketcher.Constraint("Equal", 14, 16),
    Sketcher.Constraint("Equal", 18, 21),
    Sketcher.Constraint("Equal", 23, 25),
    Sketcher.Constraint("Equal", 27, 29),
    Sketcher.Constraint("Symmetric", 3, 3, 4, 3, -1, 1),
    Sketcher.Constraint("Symmetric", 10, 3, 21, 3, -1, 1),
    Sketcher.Constraint("Symmetric", 18, 3, 25, 3, -1, 1),
    Sketcher.Constraint("Symmetric", 14, 3, 29, 3, -1, 1),
    Sketcher.Constraint("Symmetric", 14, 3, 16, 3, -2),
    Sketcher.Constraint("Horizontal", 10, 3, 12, 3),
    Sketcher.Constraint("Vertical", 1, 3, 4, 3),
    Sketcher.Constraint("Vertical", 3, 3, 6, 3),
    Sketcher.Constraint("Vertical", 8, 3, 21, 3),
    Sketcher.Constraint("Vertical", 10, 3, 23, 3),
    Sketcher.Constraint("Vertical", 12, 3, 25, 3),
    Sketcher.Constraint("Vertical", 14, 3, 27, 3),
    Sketcher.Constraint("Vertical", 18, 3, 31, 3),
    Sketcher.Constraint("Equal", 11, 13),
    Sketcher.Constraint("Radius", 1, 2.5),
    Sketcher.Constraint("Radius", 8, 1.5),
    Sketcher.Constraint("DistanceX", 9, 1, 9, 2, 6.5),
    Sketcher.Constraint("DistanceY", 8, 3, 4, 3, 7.7),
    Sketcher.Constraint("DistanceX", 0, 2, 0, 1, 20.0),
    Sketcher.Constraint("DistanceX", 12, 3, 8, 3, 20.15),
    Sketcher.Constraint("DistanceY", -1, 1, 1, 3, 30.0),
])
pocket2 = body.newObject("PartDesign::Pocket", "Pocket001")
pocket2.Profile = sketch3
pocket2.Length = 3
doc.recompute()

fillet = body.newObject("PartDesign::Fillet", "Fillet")
fillet.Base = (pocket2, edges_at(pocket2, [
    (63.5, -44, 1.5),
    (-63.5, -44, 1.5),
    (63.5, 44, 1.5),
    (-63.5, 44, 1.5),
]))
fillet.Radius = 3.38

sketch4 = body.newObject("Sketcher::SketchObject", "Sketch003")
sketch4.AttachmentSupport = (doc.getObject("XY_Plane"), [""])
sketch4.MapMode = "FlatFace"
sketch4.AttachmentOffset = App.Placement(V(0, 0, 3), App.Rotation())
sketch4.addGeometry([
    Part.Circle(V(20, 0, 0), V(0, 0, 1), 3.6),
    Part.Circle(V(20, 0, 0), V(0, 0, 1), 2.5),
    Part.Circle(V(30, 0, 0), V(0, 0, 1), 3.6),
    Part.Circle(V(30, 0, 0), V(0, 0, 1), 2.5),
    Part.Circle(V(40, 0, 0), V(0, 0, 1), 3.6),
    Part.Circle(V(40, 0, 0), V(0, 0, 1), 2.5),
    Part.Circle(V(50, 0, 0), V(0, 0, 1), 3.6),
    Part.Circle(V(50, 0, 0), V(0, 0, 1), 2.5),
    Part.Circle(V(20, 30, 0), V(0, 0, 1), 3.6),
    Part.Circle(V(20, 30, 0), V(0, 0, 1), 2.5),
    Part.Circle(V(30, 30, 0), V(0, 0, 1), 3.6),
    Part.Circle(V(30, 30, 0), V(0, 0, 1), 2.5),
    Part.Circle(V(40, 30, 0), V(0, 0, 1), 3.6),
    Part.Circle(V(40, 30, 0), V(0, 0, 1), 2.5),
    Part.Circle(V(50, 30, 0), V(0, 0, 1), 3.6),
    Part.Circle(V(50, 30, 0), V(0, 0, 1), 2.5),
    Part.Circle(V(20, -30, 0), V(0, 0, 1), 3.6),
    Part.Circle(V(20, -30, 0), V(0, 0, 1), 2.5),
    Part.Circle(V(30, -30, 0), V(0, 0, 1), 3.6),
    Part.Circle(V(30, -30, 0), V(0, 0, 1), 2.5),
    Part.Circle(V(40, -30, 0), V(0, 0, 1), 3.6),
    Part.Circle(V(40, -30, 0), V(0, 0, 1), 2.5),
    Part.Circle(V(50, -30, 0), V(0, 0, 1), 3.6),
    Part.Circle(V(50, -30, 0), V(0, 0, 1), 2.5),
], False)
sketch4.addConstraint([
    Sketcher.Constraint("Coincident", 1, 3, 0, 3),
    Sketcher.Constraint("Coincident", 3, 3, 2, 3),
    Sketcher.Constraint("Coincident", 5, 3, 4, 3),
    Sketcher.Constraint("Coincident", 7, 3, 6, 3),
    Sketcher.Constraint("Coincident", 9, 3, 8, 3),
    Sketcher.Constraint("Coincident", 11, 3, 10, 3),
    Sketcher.Constraint("Coincident", 13, 3, 12, 3),
    Sketcher.Constraint("Coincident", 15, 3, 14, 3),
    Sketcher.Constraint("Coincident", 17, 3, 16, 3),
    Sketcher.Constraint("Coincident", 19, 3, 18, 3),
    Sketcher.Constraint("Coincident", 21, 3, 20, 3),
    Sketcher.Constraint("Coincident", 23, 3, 22, 3),
    Sketcher.Constraint("Equal", 0, 2),
    Sketcher.Constraint("Equal", 1, 3),
    Sketcher.Constraint("Equal", 2, 4),
    Sketcher.Constraint("Equal", 3, 5),
    Sketcher.Constraint("Equal", 4, 6),
    Sketcher.Constraint("Equal", 5, 7),
    Sketcher.Constraint("Equal", 6, 8),
    Sketcher.Constraint("Equal", 7, 9),
    Sketcher.Constraint("Equal", 8, 10),
    Sketcher.Constraint("Equal", 9, 11),
    Sketcher.Constraint("Equal", 10, 12),
    Sketcher.Constraint("Equal", 11, 13),
    Sketcher.Constraint("Equal", 12, 14),
    Sketcher.Constraint("Equal", 13, 15),
    Sketcher.Constraint("Equal", 14, 16),
    Sketcher.Constraint("Equal", 15, 17),
    Sketcher.Constraint("Equal", 16, 18),
    Sketcher.Constraint("Equal", 17, 19),
    Sketcher.Constraint("Equal", 18, 20),
    Sketcher.Constraint("Equal", 19, 21),
    Sketcher.Constraint("Equal", 20, 22),
    Sketcher.Constraint("Equal", 21, 23),
    Sketcher.Constraint("Symmetric", 8, 3, 16, 3, -1),
    Sketcher.Constraint("Symmetric", 10, 3, 18, 3, -1),
    Sketcher.Constraint("Symmetric", 12, 3, 20, 3, -1),
    Sketcher.Constraint("Symmetric", 14, 3, 22, 3, -1),
    Sketcher.Constraint("PointOnObject", 0, 3, -1),
    Sketcher.Constraint("PointOnObject", 2, 3, -1),
    Sketcher.Constraint("PointOnObject", 4, 3, -1),
    Sketcher.Constraint("PointOnObject", 6, 3, -1),
    Sketcher.Constraint("Horizontal", 9, 3, 10, 3),
    Sketcher.Constraint("Horizontal", 11, 3, 12, 3),
    Sketcher.Constraint("Horizontal", 13, 3, 14, 3),
    Sketcher.Constraint("Vertical", 1, 3, 8, 3),
    Sketcher.Constraint("Vertical", 3, 3, 10, 3),
    Sketcher.Constraint("Vertical", 5, 3, 12, 3),
    Sketcher.Constraint("Vertical", 7, 3, 14, 3),
    Sketcher.Constraint("Diameter", 0, 7.2),
    Sketcher.Constraint("Diameter", 1, 5.0),
    Sketcher.Constraint("DistanceX", -1, 1, 2, 3, 30.0),
    Sketcher.Constraint("DistanceY", -1, 1, 8, 3, 30.0),
    Sketcher.Constraint("DistanceX", 0, 3, 2, 3, 10.0),
    Sketcher.Constraint("DistanceX", 2, 3, 4, 3, 10.0),
    Sketcher.Constraint("DistanceX", 4, 3, 6, 3, 10.0),
])
pocket3 = body.newObject("PartDesign::Pocket", "Pocket002")
pocket3.Profile = sketch4
pocket3.Type = "UpToFirst"

doc.recompute()
